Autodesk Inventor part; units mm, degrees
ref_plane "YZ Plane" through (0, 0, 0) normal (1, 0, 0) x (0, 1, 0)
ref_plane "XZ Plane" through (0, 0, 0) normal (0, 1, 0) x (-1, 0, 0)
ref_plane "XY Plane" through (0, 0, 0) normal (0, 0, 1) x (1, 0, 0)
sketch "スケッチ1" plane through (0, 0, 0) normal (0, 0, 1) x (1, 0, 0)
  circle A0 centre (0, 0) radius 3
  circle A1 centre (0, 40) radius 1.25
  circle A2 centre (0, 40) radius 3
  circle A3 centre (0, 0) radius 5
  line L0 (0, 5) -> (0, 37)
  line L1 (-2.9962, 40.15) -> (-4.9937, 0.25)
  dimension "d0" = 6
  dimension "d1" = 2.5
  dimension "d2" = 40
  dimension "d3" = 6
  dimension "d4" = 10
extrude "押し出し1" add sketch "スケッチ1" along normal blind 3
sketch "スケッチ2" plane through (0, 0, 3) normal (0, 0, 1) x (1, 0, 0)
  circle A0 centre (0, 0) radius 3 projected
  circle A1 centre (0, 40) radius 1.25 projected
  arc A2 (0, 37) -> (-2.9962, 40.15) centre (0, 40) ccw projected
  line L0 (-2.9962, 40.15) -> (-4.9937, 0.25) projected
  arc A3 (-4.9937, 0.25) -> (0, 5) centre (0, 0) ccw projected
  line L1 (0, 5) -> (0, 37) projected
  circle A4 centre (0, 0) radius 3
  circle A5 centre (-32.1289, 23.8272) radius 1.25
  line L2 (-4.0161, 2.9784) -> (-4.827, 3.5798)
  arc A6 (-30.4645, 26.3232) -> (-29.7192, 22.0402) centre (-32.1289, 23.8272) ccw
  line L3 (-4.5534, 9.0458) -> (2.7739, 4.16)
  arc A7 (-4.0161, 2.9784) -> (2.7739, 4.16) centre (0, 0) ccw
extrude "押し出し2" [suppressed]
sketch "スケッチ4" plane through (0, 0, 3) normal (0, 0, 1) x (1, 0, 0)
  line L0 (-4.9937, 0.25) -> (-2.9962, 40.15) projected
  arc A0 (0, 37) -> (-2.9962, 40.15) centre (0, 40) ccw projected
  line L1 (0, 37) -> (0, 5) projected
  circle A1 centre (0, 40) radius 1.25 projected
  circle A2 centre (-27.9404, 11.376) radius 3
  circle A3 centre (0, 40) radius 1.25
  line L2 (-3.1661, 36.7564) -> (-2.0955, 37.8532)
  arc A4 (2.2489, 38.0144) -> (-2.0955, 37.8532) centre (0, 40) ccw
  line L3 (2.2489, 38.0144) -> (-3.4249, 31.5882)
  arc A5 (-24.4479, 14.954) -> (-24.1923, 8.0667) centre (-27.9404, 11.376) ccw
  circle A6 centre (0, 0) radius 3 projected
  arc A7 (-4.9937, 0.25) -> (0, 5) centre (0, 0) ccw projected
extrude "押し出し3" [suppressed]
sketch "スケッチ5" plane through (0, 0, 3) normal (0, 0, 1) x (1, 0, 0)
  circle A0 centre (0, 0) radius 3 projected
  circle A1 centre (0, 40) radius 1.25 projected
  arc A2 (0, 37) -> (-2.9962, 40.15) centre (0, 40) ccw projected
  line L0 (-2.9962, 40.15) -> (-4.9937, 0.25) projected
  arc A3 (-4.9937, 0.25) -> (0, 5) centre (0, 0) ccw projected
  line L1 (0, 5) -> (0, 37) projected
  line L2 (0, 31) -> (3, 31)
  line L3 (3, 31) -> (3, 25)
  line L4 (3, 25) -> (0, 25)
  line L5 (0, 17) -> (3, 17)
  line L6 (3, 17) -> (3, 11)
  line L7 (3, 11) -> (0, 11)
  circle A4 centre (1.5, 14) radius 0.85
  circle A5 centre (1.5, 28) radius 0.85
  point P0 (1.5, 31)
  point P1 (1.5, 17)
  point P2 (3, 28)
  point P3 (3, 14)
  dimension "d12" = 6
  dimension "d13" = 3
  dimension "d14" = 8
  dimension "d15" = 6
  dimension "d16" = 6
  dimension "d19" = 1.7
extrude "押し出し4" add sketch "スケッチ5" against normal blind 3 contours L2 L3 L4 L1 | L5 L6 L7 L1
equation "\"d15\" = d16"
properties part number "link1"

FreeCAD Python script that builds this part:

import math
import FreeCAD as App
import Part
import Sketcher

V = App.Vector

doc = App.newDocument("Part")
body = doc.addObject("PartDesign::Body", "Body")

# Sketch on XY plane
sketch1 = doc.addObject("Sketcher::SketchObject", "Sketch")
body.addObject(sketch1)
sketch1.AttachmentSupport = (doc.XY_Plane, [""])
sketch1.MapMode = "FlatFace"
sketch1.addGeometry(Part.ArcOfCircle(Part.Circle(V(0, 40, 0), V(0, 0, 1), 3), math.radians(-90), math.radians(177)), False)
sketch1.addGeometry(Part.LineSegment(V(-3, 40.1, 0), V(-5, 0.2, 0)), False)
sketch1.addGeometry(Part.ArcOfCircle(Part.Circle(V(0, 0, 0), V(0, 0, 1), 5), math.radians(177), math.radians(450)), False)
sketch1.addGeometry(Part.LineSegment(V(0, 5, 0), V(0, 37, 0)), False)
sketch1.addGeometry(Part.Circle(V(0, 40, 0), V(0, 0, 1), 1.2), False)
sketch1.addGeometry(Part.Circle(V(0, 0, 0), V(0, 0, 1), 3), False)
sketch1.addConstraint(Sketcher.Constraint("Tangent", 0, 2, 1, 1))
sketch1.addConstraint(Sketcher.Constraint("Tangent", 1, 2, 2, 1))
sketch1.addConstraint(Sketcher.Constraint("Coincident", 2, 2, 3, 1))
sketch1.addConstraint(Sketcher.Constraint("Coincident", 3, 2, 0, 1))
sketch1.addConstraint(Sketcher.Constraint("Vertical", 3))
sketch1.addConstraint(Sketcher.Constraint("Coincident", 2, 3, -1, 1))
sketch1.addConstraint(Sketcher.Constraint("Coincident", 5, 3, -1, 1))
sketch1.addConstraint(Sketcher.Constraint("Coincident", 4, 3, 0, 3))
sketch1.addConstraint(Sketcher.Constraint("Equal", 0, 5))
sketch1.addConstraint(Sketcher.Constraint("PointOnObject", 0, 3, -2))
sketch1.addConstraint(Sketcher.Constraint("PointOnObject", 2, 2, -2))
sketch1.addConstraint(Sketcher.Constraint("Diameter", 5, 6.0))
sketch1.addConstraint(Sketcher.Constraint("Radius", 2, 5.0))
sketch1.addConstraint(Sketcher.Constraint("Diameter", 4, 2.5))
sketch1.addConstraint(Sketcher.Constraint("DistanceY", -1, 1, 0, 3, 40.0))
pad1 = doc.addObject("PartDesign::Pad", "Pad")
body.addObject(pad1)
pad1.Profile = sketch1
pad1.Length = 3

# Sketch on XY plane
sketch2 = doc.addObject("Sketcher::SketchObject", "Sketch001")
body.addObject(sketch2)
sketch2.AttachmentSupport = (doc.XY_Plane, [""])
sketch2.MapMode = "FlatFace"
sketch2.AttachmentOffset = App.Placement(V(0, 0, 3), App.Rotation())
sketch2.addGeometry(Part.LineSegment(V(3, 31, 0), V(0, 31, 0)), False)
sketch2.addGeometry(Part.LineSegment(V(0, 31, 0), V(0, 25, 0)), False)
sketch2.addGeometry(Part.LineSegment(V(0, 25, 0), V(3, 25, 0)), False)
sketch2.addGeometry(Part.LineSegment(V(3, 25, 0), V(3, 31, 0)), False)
sketch2.addGeometry(Part.Circle(V(1.5, 28, 0), V(0, 0, 1), 0.8), False)
sketch2.addGeometry(Part.LineSegment(V(3, 17, 0), V(0, 17, 0)), False)
sketch2.addGeometry(Part.LineSegment(V(0, 17, 0), V(0, 11, 0)), False)
sketch2.addGeometry(Part.LineSegment(V(0, 11, 0), V(3, 11, 0)), False)
sketch2.addGeometry(Part.LineSegment(V(3, 11, 0), V(3, 17, 0)), False)
sketch2.addGeometry(Part.Circle(V(1.5, 14, 0), V(0, 0, 1), 0.8), False)
sketch2.addConstraint(Sketcher.Constraint("Coincident", 0, 2, 1, 1))
sketch2.addConstraint(Sketcher.Constraint("Coincident", 1, 2, 2, 1))
sketch2.addConstraint(Sketcher.Constraint("Coincident", 2, 2, 3, 1))
sketch2.addConstraint(Sketcher.Constraint("Coincident", 3, 2, 0, 1))
sketch2.addConstraint(Sketcher.Constraint("Coincident", 5, 2, 6, 1))
sketch2.addConstraint(Sketcher.Constraint("Coincident", 6, 2, 7, 1))
sketch2.addConstraint(Sketcher.Constraint("Coincident", 7, 2, 8, 1))
sketch2.addConstraint(Sketcher.Constraint("Coincident", 8, 2, 5, 1))
sketch2.addConstraint(Sketcher.Constraint("Horizontal", 0))
sketch2.addConstraint(Sketcher.Constraint("Vertical", 1))
sketch2.addConstraint(Sketcher.Constraint("Horizontal", 2))
sketch2.addConstraint(Sketcher.Constraint("Vertical", 3))
sketch2.addConstraint(Sketcher.Constraint("Horizontal", 5))
sketch2.addConstraint(Sketcher.Constraint("Vertical", 6))
sketch2.addConstraint(Sketcher.Constraint("Horizontal", 7))
sketch2.addConstraint(Sketcher.Constraint("Vertical", 8))
sketch2.addConstraint(Sketcher.Constraint("Equal", 4, 9))
sketch2.addConstraint(Sketcher.Constraint("PointOnObject", 0, 2, -2))
sketch2.addConstraint(Sketcher.Constraint("PointOnObject", 5, 2, -2))
sketch2.addConstraint(Sketcher.Constraint("Vertical", 4, 3, 9, 3))
sketch2.addConstraint(Sketcher.Constraint("Vertical", 3, 2, 7, 2))
sketch2.addConstraint(Sketcher.Constraint("Equal", 3, 6))
sketch2.addConstraint(Sketcher.Constraint("Diameter", 4, 1.7))
sketch2.addConstraint(Sketcher.Constraint("DistanceX", 0, 2, 0, 1, 3.0))
sketch2.addConstraint(Sketcher.Constraint("DistanceY", 1, 2, 1, 1, 6.0))
sketch2.addConstraint(Sketcher.Constraint("DistanceY", 4, 3, 0, 2, 3.0))
sketch2.addConstraint(Sketcher.Constraint("DistanceY", 9, 3, 5, 2, 3.0))
sketch2.addConstraint(Sketcher.Constraint("DistanceY", 5, 2, 1, 2, 8.0))
sketch2.addConstraint(Sketcher.Constraint("DistanceY", -1, 1, 4, 3, 28.0))
sketch2.addConstraint(Sketcher.Constraint("DistanceX", -1, 1, 4, 3, 1.5))
pad2 = doc.addObject("PartDesign::Pad", "Pad001")
body.addObject(pad2)
pad2.Profile = sketch2
pad2.Length = 3
pad2.Reversed = True

doc.recompute()
